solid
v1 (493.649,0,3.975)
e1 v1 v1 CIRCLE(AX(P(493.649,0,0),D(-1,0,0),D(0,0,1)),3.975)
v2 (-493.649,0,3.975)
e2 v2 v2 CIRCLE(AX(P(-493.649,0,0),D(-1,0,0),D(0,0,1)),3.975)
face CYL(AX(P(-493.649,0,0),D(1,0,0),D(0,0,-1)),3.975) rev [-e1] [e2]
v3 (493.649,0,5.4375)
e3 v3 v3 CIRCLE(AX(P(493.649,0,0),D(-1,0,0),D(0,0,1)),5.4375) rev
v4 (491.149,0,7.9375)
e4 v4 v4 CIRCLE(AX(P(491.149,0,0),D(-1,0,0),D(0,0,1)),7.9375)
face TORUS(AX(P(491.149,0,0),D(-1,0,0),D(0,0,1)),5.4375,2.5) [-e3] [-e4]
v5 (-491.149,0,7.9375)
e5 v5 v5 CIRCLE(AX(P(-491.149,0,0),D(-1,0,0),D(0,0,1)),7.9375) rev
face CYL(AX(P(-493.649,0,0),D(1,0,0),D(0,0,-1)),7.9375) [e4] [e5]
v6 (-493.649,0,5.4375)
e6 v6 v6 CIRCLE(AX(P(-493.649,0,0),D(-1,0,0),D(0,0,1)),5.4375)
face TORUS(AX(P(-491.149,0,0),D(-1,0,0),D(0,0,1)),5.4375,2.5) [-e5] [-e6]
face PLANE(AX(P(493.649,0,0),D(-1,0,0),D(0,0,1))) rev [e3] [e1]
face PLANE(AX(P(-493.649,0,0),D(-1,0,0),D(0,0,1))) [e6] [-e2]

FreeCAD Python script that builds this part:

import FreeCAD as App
import Part
import Sketcher
from FreeCAD import Vector
Q = App.Units.Quantity


def edges_at(feature, points):
    """Names of the edges that pass closest to the given points."""
    edges = feature.Shape.Edges
    near = lambda p: min(range(len(edges)), key=lambda i: edges[i].distToShape(Part.Vertex(*p))[0])
    return sorted({f"Edge{near(p) + 1}" for p in points})

doc = App.newDocument("Part")
params = doc.addObject("Spreadsheet::Sheet", "Params")
for row, (alias, value) in enumerate([
    ("sketch1_diameter", "0.625 in"),
    ("pad1_length", "38.87 in"),
    ("fillet_radius", "2.5 mm"),
], start=1):
    params.set(f"A{row}", alias)
    params.set(f"B{row}", "=" + value)
    params.setAlias(f"B{row}", alias)

body = doc.addObject("PartDesign::Body", "Body")

sketch1 = body.newObject("Sketcher::SketchObject", "Sketch")
sketch1.AttachmentSupport = (doc.getObject("XZ_Plane"), [""])
sketch1.MapMode = "FlatFace"
sketch1.addGeometry([
    Part.Circle(Vector(0, 0, 0), Vector(0, 0, 1), 7.9),
    Part.Circle(Vector(0, 0, 0), Vector(0, 0, 1), 4),
], False)
sketch1.addConstraint([
    Sketcher.Constraint("Coincident", 0, 3, -1, 1),
    Sketcher.Constraint("Coincident", 1, 3, -1, 1),
    Sketcher.Constraint("Diameter", 0, Q("0.625 in")),
    Sketcher.Constraint("Diameter", 1, 7.95),
])
sketch1.setExpression("Constraints[2]", "Params.sketch1_diameter")
pad1 = body.newObject("PartDesign::Pad", "Pad")
pad1.Profile = sketch1
pad1.setExpression("Length", "Params.pad1_length")
pad1.Midplane = True
doc.recompute()

fillet = body.newObject("PartDesign::Fillet", "Fillet")
fillet.Base = (pad1, edges_at(pad1, [(-7.938, -493.649, 0), (-7.938, 493.649, 0)]))
fillet.setExpression("Radius", "Params.fillet_radius")
body2 = doc.addObject("PartDesign::Body", "Body001")
doc.recompute()

body.Placement = App.Placement(Vector(0, 0, 0), App.Rotation(Vector(0, 0, 1), 90))
boolean = body2.newObject("PartDesign::Boolean", "Boolean")
boolean.Type = "Fuse"
boolean.addObjects([body])

doc.recompute()
